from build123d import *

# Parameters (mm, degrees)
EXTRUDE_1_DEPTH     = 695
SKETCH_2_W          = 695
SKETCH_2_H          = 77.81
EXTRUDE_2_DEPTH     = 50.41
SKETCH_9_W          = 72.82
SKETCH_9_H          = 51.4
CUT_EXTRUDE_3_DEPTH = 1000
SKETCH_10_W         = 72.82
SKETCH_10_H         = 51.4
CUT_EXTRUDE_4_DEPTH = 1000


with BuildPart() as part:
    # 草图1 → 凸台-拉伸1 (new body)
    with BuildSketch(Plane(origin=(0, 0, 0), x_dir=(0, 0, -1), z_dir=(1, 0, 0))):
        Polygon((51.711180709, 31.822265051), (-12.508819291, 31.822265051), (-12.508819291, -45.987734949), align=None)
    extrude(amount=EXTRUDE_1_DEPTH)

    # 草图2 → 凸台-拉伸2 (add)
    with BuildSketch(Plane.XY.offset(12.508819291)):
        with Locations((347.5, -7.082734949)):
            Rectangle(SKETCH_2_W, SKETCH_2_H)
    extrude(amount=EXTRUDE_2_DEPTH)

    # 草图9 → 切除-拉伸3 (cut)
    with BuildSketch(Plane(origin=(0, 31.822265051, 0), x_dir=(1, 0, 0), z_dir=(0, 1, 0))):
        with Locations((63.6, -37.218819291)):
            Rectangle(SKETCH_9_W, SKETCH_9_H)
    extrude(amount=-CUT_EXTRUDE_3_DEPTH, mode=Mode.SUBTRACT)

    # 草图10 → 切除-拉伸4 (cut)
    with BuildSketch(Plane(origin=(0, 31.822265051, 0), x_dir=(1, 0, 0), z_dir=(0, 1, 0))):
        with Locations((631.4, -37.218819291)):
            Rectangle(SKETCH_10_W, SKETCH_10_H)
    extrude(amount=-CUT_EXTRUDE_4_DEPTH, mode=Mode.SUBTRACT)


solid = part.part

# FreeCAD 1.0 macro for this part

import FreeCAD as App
import Part
import Sketcher
from FreeCAD import Vector
Q = App.Units.Quantity


def add_polygon(sketch, points):
    """Adds a closed chain of lines whose ends are joined by coincident constraints."""
    first, n = sketch.GeometryCount, len(points)
    for a, b in zip(points, points[1:] + points[:1]):
        sketch.addGeometry(Part.LineSegment(App.Vector(*a, 0), App.Vector(*b, 0)), False)
    for i in range(n):
        sketch.addConstraint(Sketcher.Constraint("Coincident", first + i, 2, first + (i + 1) % n, 1))

doc = App.newDocument("Part")
body = doc.addObject("PartDesign::Body", "Body")

# Sketch on YZ plane
sketch1 = doc.addObject("Sketcher::SketchObject", "Sketch")
body.addObject(sketch1)
sketch1.AttachmentSupport = (doc.YZ_Plane, [""])
sketch1.MapMode = "FlatFace"
add_polygon(sketch1, [(31.822265, -51.711181), (31.822265, 12.508819), (-45.987735, 12.508819)])  # lines 0-2
sketch1.addConstraint(Sketcher.Constraint("Vertical", 0))
sketch1.addConstraint(Sketcher.Constraint("Horizontal", 1))
sketch1.addConstraint(Sketcher.Constraint("DistanceX", 1, 2, 1, 1, Q("77.81 mm")))
sketch1.addConstraint(Sketcher.Constraint("DistanceY", 0, 1, 0, 2, Q("64.22 mm")))
sketch1.addConstraint(Sketcher.Constraint("DistanceY", -1, 1, 0, 2, Q("12.508819 mm")))
sketch1.addConstraint(Sketcher.Constraint("DistanceX", -1, 1, 0, 2, Q("31.822265 mm")))
pad1 = doc.addObject("PartDesign::Pad", "Pad")
body.addObject(pad1)
pad1.Profile = sketch1
pad1.Length = 695

# Sketch on XY plane
sketch2 = doc.addObject("Sketcher::SketchObject", "Sketch001")
body.addObject(sketch2)
sketch2.AttachmentSupport = (doc.XY_Plane, [""])
sketch2.MapMode = "FlatFace"
sketch2.AttachmentOffset = App.Placement(Vector(0, 0, 12.508819), App.Rotation())
add_polygon(sketch2, [(0, 31.822265), (0, -45.987735), (695, -45.987735), (695, 31.822265)])  # lines 0-3
sketch2.addConstraint(Sketcher.Constraint("Vertical", 0))
sketch2.addConstraint(Sketcher.Constraint("Horizontal", 1))
sketch2.addConstraint(Sketcher.Constraint("Vertical", 2))
sketch2.addConstraint(Sketcher.Constraint("Horizontal", 3))
sketch2.addConstraint(Sketcher.Constraint("PointOnObject", 0, 2, -2))
sketch2.addConstraint(Sketcher.Constraint("DistanceX", 1, 1, 1, 2, Q("695 mm")))
sketch2.addConstraint(Sketcher.Constraint("DistanceY", 0, 2, 0, 1, Q("77.81 mm")))
sketch2.addConstraint(Sketcher.Constraint("DistanceY", 0, 2, -1, 1, Q("45.987735 mm")))
pad2 = doc.addObject("PartDesign::Pad", "Pad001")
body.addObject(pad2)
pad2.Profile = sketch2
pad2.Length = 50.41

# Sketch on XZ plane
sketch3 = doc.addObject("Sketcher::SketchObject", "Sketch002")
body.addObject(sketch3)
sketch3.AttachmentSupport = (doc.XZ_Plane, [""])
sketch3.MapMode = "FlatFace"
sketch3.AttachmentOffset = App.Placement(Vector(0, 0, -31.822265), App.Rotation())
add_polygon(sketch3, [(27.19, 11.518819), (27.19, 62.918819), (100.01, 62.918819), (100.01, 11.518819)])  # lines 0-3
sketch3.addConstraint(Sketcher.Constraint("Vertical", 0))
sketch3.addConstraint(Sketcher.Constraint("Horizontal", 1))
sketch3.addConstraint(Sketcher.Constraint("Vertical", 2))
sketch3.addConstraint(Sketcher.Constraint("Horizontal", 3))
sketch3.addConstraint(Sketcher.Constraint("DistanceY", 0, 1, 0, 2, Q("51.4 mm")))
sketch3.addConstraint(Sketcher.Constraint("DistanceX", 1, 1, 1, 2, Q("72.82 mm")))
sketch3.addConstraint(Sketcher.Constraint("DistanceX", -1, 1, 0, 2, Q("27.19 mm")))
sketch3.addConstraint(Sketcher.Constraint("DistanceY", -1, 1, 0, 2, Q("62.918819 mm")))
pocket1 = doc.addObject("PartDesign::Pocket", "Pocket")
body.addObject(pocket1)
pocket1.Profile = sketch3
pocket1.Length = 1000
pocket1.Reversed = True

# Sketch on XZ plane
sketch4 = doc.addObject("Sketcher::SketchObject", "Sketch003")
body.addObject(sketch4)
sketch4.AttachmentSupport = (doc.XZ_Plane, [""])
sketch4.MapMode = "FlatFace"
sketch4.AttachmentOffset = App.Placement(Vector(0, 0, -31.822265), App.Rotation())
add_polygon(sketch4, [(594.99, 11.518819), (594.99, 62.918819), (667.81, 62.918819), (667.81, 11.518819)])  # lines 0-3
sketch4.addConstraint(Sketcher.Constraint("Vertical", 0))
sketch4.addConstraint(Sketcher.Constraint("Horizontal", 1))
sketch4.addConstraint(Sketcher.Constraint("Vertical", 2))
sketch4.addConstraint(Sketcher.Constraint("Horizontal", 3))
sketch4.addConstraint(Sketcher.Constraint("DistanceY", 0, 1, 0, 2, Q("51.4 mm")))
sketch4.addConstraint(Sketcher.Constraint("DistanceX", 1, 1, 1, 2, Q("72.82 mm")))
sketch4.addConstraint(Sketcher.Constraint("DistanceX", -1, 1, 0, 2, Q("594.99 mm")))
sketch4.addConstraint(Sketcher.Constraint("DistanceY", -1, 1, 0, 2, Q("62.918819 mm")))
pocket2 = doc.addObject("PartDesign::Pocket", "Pocket001")
body.addObject(pocket2)
pocket2.Profile = sketch4
pocket2.Length = 1000
pocket2.Reversed = True

doc.recompute()
